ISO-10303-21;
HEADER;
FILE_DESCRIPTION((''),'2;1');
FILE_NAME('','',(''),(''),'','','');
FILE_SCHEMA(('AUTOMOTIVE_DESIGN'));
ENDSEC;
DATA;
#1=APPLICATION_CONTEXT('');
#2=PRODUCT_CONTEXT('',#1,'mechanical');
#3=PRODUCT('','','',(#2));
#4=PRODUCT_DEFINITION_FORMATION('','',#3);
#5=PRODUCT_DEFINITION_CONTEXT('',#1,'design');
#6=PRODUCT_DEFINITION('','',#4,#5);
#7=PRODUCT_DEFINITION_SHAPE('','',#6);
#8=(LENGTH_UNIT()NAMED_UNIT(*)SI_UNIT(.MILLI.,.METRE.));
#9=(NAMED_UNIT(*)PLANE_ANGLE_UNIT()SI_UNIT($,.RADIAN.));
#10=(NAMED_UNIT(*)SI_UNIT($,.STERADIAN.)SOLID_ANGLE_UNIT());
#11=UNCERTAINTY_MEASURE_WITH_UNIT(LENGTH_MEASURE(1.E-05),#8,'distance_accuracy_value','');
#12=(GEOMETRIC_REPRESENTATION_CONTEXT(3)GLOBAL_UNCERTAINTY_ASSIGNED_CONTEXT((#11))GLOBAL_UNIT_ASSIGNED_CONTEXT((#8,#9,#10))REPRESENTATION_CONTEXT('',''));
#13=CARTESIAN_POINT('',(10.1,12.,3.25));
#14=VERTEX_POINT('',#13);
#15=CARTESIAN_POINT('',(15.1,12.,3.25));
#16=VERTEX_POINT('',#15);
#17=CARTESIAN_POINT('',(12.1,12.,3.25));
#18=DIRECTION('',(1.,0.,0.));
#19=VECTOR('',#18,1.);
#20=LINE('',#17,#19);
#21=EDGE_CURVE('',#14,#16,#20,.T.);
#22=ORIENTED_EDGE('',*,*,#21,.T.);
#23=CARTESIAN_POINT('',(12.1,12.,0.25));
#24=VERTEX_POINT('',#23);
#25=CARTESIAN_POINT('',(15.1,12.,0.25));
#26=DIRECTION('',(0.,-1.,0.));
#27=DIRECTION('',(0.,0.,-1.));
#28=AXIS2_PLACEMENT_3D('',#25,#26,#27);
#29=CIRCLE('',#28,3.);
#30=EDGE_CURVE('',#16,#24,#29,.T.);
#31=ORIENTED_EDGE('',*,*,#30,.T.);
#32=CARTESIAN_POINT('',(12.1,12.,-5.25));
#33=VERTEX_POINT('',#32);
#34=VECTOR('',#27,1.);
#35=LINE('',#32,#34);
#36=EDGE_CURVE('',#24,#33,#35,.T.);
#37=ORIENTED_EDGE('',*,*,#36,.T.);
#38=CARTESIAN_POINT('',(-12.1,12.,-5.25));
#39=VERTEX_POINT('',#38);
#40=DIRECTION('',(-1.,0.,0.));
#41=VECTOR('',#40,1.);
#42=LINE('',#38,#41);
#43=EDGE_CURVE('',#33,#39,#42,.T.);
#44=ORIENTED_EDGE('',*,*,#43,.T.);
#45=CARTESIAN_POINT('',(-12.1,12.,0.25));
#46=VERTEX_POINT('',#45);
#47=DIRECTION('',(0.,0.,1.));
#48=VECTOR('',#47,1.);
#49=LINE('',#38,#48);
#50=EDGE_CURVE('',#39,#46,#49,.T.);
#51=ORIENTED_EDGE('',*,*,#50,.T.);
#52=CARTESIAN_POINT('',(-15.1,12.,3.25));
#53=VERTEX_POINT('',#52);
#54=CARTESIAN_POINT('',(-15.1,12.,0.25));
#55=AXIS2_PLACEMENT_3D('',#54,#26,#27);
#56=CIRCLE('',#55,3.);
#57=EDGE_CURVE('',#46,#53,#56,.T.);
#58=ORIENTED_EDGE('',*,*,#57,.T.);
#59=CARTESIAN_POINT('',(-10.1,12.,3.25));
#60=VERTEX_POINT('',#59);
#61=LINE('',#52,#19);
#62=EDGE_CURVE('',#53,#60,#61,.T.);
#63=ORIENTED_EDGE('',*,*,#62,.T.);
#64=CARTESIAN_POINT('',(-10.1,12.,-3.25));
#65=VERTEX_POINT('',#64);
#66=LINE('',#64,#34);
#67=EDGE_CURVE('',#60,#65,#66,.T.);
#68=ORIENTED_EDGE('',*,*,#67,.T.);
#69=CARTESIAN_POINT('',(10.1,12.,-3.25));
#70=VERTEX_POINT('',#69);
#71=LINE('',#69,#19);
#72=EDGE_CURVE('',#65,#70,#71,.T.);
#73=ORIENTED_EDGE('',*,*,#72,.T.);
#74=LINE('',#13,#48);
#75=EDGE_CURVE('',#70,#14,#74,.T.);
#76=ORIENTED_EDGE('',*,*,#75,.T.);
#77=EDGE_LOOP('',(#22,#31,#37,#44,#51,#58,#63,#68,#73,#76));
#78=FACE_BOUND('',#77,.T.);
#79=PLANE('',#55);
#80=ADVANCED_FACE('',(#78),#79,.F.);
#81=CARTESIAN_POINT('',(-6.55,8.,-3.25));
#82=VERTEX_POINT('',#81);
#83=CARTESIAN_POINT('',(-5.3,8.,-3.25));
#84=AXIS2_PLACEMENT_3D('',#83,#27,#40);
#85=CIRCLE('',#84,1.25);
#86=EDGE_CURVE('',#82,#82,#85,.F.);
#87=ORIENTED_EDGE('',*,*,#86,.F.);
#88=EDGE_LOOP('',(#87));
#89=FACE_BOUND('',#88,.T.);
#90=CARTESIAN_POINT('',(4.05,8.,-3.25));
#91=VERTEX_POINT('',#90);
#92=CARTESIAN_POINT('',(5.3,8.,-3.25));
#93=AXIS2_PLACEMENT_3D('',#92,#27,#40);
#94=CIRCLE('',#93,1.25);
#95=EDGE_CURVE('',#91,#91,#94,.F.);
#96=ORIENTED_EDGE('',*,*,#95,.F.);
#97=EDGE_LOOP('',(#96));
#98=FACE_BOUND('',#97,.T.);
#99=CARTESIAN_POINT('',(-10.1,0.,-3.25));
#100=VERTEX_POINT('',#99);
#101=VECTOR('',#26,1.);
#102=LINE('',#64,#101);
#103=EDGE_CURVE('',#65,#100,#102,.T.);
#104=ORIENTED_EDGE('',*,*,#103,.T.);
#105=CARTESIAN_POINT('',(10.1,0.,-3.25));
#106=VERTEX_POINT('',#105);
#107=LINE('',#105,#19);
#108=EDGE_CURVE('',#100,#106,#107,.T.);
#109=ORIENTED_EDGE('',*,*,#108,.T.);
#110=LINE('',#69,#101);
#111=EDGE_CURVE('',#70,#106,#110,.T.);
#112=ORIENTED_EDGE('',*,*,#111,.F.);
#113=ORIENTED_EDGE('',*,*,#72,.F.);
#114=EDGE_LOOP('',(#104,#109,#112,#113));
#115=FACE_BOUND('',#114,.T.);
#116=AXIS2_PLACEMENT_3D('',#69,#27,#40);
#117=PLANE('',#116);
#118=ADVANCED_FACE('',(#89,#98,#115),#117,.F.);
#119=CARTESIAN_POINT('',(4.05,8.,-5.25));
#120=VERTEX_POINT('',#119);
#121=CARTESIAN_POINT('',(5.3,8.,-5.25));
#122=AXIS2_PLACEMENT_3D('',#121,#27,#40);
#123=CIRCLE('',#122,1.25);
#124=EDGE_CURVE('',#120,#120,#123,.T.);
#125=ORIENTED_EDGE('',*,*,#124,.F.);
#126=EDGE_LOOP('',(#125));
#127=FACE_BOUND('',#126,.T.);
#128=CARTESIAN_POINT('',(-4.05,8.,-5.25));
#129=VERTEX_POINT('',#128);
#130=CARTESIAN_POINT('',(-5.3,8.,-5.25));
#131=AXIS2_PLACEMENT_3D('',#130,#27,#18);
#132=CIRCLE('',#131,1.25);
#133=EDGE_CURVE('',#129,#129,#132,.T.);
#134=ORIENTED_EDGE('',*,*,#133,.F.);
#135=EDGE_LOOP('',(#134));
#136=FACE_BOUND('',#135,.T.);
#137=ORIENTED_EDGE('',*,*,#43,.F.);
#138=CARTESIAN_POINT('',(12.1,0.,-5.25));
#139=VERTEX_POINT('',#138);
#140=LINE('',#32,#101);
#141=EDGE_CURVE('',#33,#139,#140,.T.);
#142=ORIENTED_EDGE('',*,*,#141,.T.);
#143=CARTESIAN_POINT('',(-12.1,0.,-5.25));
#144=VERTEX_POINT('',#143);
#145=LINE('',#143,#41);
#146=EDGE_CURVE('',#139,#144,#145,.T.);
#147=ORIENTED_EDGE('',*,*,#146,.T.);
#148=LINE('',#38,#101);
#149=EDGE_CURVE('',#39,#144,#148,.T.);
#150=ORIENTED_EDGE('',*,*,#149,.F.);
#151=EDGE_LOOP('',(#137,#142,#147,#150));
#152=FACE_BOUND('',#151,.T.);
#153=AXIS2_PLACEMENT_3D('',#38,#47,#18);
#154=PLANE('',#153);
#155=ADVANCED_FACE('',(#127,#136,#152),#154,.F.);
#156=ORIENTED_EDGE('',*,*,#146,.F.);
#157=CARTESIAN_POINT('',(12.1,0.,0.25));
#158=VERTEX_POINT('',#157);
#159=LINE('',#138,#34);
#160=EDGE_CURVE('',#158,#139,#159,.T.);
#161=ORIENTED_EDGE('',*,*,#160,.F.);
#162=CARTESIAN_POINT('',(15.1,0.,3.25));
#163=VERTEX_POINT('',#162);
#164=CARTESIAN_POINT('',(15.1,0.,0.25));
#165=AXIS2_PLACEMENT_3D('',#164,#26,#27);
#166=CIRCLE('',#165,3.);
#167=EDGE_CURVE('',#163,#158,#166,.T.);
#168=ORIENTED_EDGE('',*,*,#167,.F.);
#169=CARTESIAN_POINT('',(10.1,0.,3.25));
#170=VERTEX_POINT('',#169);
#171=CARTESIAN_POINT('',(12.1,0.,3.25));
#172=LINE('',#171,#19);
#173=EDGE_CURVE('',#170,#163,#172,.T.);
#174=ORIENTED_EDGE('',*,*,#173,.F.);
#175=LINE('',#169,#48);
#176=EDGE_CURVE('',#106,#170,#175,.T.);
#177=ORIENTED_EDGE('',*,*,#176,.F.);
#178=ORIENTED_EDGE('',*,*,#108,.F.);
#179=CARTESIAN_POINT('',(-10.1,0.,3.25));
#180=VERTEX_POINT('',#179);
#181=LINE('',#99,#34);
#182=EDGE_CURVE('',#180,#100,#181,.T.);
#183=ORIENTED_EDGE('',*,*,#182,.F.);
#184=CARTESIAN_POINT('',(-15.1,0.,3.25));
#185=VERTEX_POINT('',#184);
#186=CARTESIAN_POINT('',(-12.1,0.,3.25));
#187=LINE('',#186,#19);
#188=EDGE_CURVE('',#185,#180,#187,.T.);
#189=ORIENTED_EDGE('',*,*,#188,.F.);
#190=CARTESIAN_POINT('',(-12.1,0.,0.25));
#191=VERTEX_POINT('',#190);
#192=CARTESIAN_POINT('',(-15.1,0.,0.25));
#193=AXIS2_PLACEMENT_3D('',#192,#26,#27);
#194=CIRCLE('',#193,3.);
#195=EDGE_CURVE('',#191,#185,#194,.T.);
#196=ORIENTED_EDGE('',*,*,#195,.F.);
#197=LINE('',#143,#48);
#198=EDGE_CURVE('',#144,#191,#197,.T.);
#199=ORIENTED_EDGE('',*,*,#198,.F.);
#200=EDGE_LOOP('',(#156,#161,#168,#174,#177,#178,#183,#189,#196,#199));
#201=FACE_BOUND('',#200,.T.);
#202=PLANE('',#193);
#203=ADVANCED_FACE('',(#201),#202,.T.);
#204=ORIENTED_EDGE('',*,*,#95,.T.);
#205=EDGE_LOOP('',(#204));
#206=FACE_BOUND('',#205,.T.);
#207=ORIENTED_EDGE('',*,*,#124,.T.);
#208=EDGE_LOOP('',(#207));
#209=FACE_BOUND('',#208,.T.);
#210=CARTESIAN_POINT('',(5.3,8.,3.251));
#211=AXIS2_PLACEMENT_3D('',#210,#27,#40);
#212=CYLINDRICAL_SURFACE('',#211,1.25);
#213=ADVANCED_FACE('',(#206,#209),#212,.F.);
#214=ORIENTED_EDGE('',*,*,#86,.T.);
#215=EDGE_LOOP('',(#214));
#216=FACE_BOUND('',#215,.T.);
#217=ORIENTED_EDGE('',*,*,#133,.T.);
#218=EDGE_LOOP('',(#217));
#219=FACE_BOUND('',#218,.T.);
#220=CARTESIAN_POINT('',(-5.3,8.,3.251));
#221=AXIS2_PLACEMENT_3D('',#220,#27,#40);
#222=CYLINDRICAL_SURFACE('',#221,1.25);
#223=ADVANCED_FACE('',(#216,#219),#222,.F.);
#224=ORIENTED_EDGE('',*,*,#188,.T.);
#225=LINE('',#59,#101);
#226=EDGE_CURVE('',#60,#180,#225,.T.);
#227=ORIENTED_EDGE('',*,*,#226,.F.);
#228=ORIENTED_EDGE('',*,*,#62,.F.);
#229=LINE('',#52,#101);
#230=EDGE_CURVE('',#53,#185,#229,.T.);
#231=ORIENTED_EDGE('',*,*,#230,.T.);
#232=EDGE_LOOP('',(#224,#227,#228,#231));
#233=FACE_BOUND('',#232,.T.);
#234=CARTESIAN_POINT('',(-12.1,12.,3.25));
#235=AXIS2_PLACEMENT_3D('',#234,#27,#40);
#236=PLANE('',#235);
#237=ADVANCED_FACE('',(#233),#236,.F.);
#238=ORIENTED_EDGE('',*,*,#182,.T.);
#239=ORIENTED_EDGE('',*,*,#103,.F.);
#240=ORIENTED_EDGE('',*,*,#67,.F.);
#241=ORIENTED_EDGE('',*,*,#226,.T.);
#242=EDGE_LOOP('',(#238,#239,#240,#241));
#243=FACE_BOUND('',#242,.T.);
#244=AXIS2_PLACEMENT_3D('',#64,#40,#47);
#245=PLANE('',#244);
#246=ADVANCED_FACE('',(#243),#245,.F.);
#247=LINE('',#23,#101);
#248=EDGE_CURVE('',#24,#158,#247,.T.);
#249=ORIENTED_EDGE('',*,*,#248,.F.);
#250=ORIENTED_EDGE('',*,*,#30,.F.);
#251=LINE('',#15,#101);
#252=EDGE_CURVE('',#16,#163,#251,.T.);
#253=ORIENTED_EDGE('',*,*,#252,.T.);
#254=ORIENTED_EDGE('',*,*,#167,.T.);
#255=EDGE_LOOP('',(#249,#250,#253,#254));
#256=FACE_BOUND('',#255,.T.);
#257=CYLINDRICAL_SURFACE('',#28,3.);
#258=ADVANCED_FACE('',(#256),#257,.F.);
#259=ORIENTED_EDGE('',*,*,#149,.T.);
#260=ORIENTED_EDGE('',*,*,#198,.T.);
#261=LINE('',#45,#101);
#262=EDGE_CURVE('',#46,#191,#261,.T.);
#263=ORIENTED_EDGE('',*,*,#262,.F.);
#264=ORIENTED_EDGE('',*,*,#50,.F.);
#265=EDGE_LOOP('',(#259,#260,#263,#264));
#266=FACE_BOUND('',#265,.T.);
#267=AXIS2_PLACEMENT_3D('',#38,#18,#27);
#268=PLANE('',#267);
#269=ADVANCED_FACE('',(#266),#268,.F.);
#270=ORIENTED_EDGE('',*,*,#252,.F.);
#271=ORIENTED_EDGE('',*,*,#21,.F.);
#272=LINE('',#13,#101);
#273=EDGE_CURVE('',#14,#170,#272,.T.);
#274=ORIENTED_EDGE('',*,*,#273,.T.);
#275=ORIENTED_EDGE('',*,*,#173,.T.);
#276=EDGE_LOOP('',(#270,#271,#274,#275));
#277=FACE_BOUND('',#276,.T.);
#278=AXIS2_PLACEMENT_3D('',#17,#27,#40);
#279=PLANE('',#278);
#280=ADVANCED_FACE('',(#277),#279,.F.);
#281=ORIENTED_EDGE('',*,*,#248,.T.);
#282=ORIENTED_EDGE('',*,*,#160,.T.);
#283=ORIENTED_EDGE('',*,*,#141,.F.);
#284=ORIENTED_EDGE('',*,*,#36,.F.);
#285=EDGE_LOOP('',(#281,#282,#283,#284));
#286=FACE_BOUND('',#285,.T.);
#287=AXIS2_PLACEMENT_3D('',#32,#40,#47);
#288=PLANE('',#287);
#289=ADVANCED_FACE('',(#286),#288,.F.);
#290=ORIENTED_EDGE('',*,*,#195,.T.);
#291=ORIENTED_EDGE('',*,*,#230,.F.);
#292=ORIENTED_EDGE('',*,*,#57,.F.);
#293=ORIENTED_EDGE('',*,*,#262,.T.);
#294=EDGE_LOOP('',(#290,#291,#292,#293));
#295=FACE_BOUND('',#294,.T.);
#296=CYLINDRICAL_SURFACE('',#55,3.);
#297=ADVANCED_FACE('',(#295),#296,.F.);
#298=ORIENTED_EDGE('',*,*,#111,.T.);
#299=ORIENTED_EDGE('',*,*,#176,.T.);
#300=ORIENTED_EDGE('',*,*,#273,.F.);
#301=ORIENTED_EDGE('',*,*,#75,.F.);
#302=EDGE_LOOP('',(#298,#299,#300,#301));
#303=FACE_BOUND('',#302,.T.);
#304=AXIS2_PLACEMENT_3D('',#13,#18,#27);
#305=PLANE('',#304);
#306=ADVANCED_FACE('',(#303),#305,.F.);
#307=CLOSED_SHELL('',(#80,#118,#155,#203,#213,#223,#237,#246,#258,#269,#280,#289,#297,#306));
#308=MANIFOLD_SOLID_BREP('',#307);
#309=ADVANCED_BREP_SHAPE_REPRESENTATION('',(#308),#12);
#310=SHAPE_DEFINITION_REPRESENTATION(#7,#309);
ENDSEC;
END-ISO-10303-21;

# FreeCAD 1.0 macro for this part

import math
import FreeCAD as App
import Part
import Sketcher

V = App.Vector
Q = App.Units.Quantity

doc = App.newDocument("Part")
body = doc.addObject("PartDesign::Body", "Body")

# Sketch on XZ plane
sketch1 = doc.addObject("Sketcher::SketchObject", "Sketch")
body.addObject(sketch1)
sketch1.AttachmentSupport = (doc.XZ_Plane, [""])
sketch1.MapMode = "FlatFace"
sketch1.addGeometry([
    Part.LineSegment(V(-10.1, 3.25, 0), V(-10.1, -3.25, 0)),  # 0
    Part.LineSegment(V(-10.1, -3.25, 0), V(10.1, -3.25, 0)),  # 1
    Part.LineSegment(V(10.1, -3.25, 0), V(10.1, 3.25, 0)),  # 2
    Part.LineSegment(V(10.1, 3.25, 0), V(15.1, 3.25, 0)),  # 3
    Part.ArcOfCircle(Part.Circle(V(15.1, 0.25, 0), V(0, 0, 1), 3), math.radians(90), math.radians(180)),  # 4
    Part.LineSegment(V(12.1, 0.25, 0), V(12.1, -5.25, 0)),  # 5
    Part.LineSegment(V(12.1, -5.25, 0), V(-12.1, -5.25, 0)),  # 6
    Part.LineSegment(V(-12.1, -5.25, 0), V(-12.1, 0.25, 0)),  # 7
    Part.ArcOfCircle(Part.Circle(V(-15.1, 0.25, 0), V(0, 0, 1), 3), math.radians(0), math.radians(90)),  # 8
    Part.LineSegment(V(-15.1, 3.25, 0), V(-10.1, 3.25, 0)),  # 9
], False)
sketch1.addConstraint([
    Sketcher.Constraint("Coincident", 0, 2, 1, 1),
    Sketcher.Constraint("Coincident", 1, 2, 2, 1),
    Sketcher.Constraint("Coincident", 2, 2, 3, 1),
    Sketcher.Constraint("Tangent", 3, 2, 4, 1),
    Sketcher.Constraint("Tangent", 4, 2, 5, 1),
    Sketcher.Constraint("Coincident", 5, 2, 6, 1),
    Sketcher.Constraint("Coincident", 6, 2, 7, 1),
    Sketcher.Constraint("Tangent", 7, 2, 8, 1),
    Sketcher.Constraint("Tangent", 8, 2, 9, 1),
    Sketcher.Constraint("Coincident", 9, 2, 0, 1),
    Sketcher.Constraint("Vertical", 0),
    Sketcher.Constraint("Horizontal", 1),
    Sketcher.Constraint("Vertical", 2),
    Sketcher.Constraint("Horizontal", 3),
    Sketcher.Constraint("Vertical", 5),
    Sketcher.Constraint("Horizontal", 6),
    Sketcher.Constraint("Vertical", 7),
    Sketcher.Constraint("Horizontal", 9),
    Sketcher.Constraint("Equal", 4, 8),
    Sketcher.Constraint("Symmetric", 0, 2, 2, 2, -1, 1),
    Sketcher.Constraint("Symmetric", 4, 3, 8, 3, -2),
    Sketcher.Constraint("Radius", 4, Q("3 mm")),
    Sketcher.Constraint("DistanceX", 3, 1, 3, 2, Q("5 mm")),
    Sketcher.Constraint("DistanceX", 1, 1, 1, 2, Q("20.2 mm")),
    Sketcher.Constraint("DistanceY", 0, 2, 0, 1, Q("6.5 mm")),
    Sketcher.Constraint("DistanceY", 5, 2, 5, 1, Q("5.5 mm")),
])
pad1 = doc.addObject("PartDesign::Pad", "Pad")
body.addObject(pad1)
pad1.Profile = sketch1
pad1.Length = 12
pad1.Reversed = True

# Sketch on XY plane
sketch2 = doc.addObject("Sketcher::SketchObject", "Sketch001")
body.addObject(sketch2)
sketch2.AttachmentSupport = (doc.XY_Plane, [""])
sketch2.MapMode = "FlatFace"
sketch2.AttachmentOffset = App.Placement(V(0, 0, -5.25), App.Rotation())
sketch2.addGeometry(Part.Circle(V(5.3, 8, 0), V(0, 0, 1), 1.25), False)
sketch2.addConstraint([
    Sketcher.Constraint("Diameter", 0, Q("2.5 mm")),
    Sketcher.Constraint("DistanceY", -1, 1, 0, 3, Q("8 mm")),
    Sketcher.Constraint("DistanceX", -1, 1, 0, 3, Q("5.3 mm")),
])
pocket1 = doc.addObject("PartDesign::Pocket", "Pocket")
body.addObject(pocket1)
pocket1.Profile = sketch2
pocket1.Type = "UpToFirst"
pocket1.Reversed = True

# Sketch on XY plane
sketch3 = doc.addObject("Sketcher::SketchObject", "Sketch002")
body.addObject(sketch3)
sketch3.AttachmentSupport = (doc.XY_Plane, [""])
sketch3.MapMode = "FlatFace"
sketch3.AttachmentOffset = App.Placement(V(0, 0, -5.25), App.Rotation())
sketch3.addGeometry(Part.Circle(V(-5.3, 8, 0), V(0, 0, 1), 1.25), False)
sketch3.addConstraint([
    Sketcher.Constraint("Diameter", 0, Q("2.5 mm")),
    Sketcher.Constraint("DistanceY", -1, 1, 0, 3, Q("8 mm")),
    Sketcher.Constraint("DistanceX", 0, 3, -1, 1, Q("5.3 mm")),
])
pocket2 = doc.addObject("PartDesign::Pocket", "Pocket001")
body.addObject(pocket2)
pocket2.Profile = sketch3
pocket2.Type = "UpToFirst"
pocket2.Reversed = True

doc.recompute()
